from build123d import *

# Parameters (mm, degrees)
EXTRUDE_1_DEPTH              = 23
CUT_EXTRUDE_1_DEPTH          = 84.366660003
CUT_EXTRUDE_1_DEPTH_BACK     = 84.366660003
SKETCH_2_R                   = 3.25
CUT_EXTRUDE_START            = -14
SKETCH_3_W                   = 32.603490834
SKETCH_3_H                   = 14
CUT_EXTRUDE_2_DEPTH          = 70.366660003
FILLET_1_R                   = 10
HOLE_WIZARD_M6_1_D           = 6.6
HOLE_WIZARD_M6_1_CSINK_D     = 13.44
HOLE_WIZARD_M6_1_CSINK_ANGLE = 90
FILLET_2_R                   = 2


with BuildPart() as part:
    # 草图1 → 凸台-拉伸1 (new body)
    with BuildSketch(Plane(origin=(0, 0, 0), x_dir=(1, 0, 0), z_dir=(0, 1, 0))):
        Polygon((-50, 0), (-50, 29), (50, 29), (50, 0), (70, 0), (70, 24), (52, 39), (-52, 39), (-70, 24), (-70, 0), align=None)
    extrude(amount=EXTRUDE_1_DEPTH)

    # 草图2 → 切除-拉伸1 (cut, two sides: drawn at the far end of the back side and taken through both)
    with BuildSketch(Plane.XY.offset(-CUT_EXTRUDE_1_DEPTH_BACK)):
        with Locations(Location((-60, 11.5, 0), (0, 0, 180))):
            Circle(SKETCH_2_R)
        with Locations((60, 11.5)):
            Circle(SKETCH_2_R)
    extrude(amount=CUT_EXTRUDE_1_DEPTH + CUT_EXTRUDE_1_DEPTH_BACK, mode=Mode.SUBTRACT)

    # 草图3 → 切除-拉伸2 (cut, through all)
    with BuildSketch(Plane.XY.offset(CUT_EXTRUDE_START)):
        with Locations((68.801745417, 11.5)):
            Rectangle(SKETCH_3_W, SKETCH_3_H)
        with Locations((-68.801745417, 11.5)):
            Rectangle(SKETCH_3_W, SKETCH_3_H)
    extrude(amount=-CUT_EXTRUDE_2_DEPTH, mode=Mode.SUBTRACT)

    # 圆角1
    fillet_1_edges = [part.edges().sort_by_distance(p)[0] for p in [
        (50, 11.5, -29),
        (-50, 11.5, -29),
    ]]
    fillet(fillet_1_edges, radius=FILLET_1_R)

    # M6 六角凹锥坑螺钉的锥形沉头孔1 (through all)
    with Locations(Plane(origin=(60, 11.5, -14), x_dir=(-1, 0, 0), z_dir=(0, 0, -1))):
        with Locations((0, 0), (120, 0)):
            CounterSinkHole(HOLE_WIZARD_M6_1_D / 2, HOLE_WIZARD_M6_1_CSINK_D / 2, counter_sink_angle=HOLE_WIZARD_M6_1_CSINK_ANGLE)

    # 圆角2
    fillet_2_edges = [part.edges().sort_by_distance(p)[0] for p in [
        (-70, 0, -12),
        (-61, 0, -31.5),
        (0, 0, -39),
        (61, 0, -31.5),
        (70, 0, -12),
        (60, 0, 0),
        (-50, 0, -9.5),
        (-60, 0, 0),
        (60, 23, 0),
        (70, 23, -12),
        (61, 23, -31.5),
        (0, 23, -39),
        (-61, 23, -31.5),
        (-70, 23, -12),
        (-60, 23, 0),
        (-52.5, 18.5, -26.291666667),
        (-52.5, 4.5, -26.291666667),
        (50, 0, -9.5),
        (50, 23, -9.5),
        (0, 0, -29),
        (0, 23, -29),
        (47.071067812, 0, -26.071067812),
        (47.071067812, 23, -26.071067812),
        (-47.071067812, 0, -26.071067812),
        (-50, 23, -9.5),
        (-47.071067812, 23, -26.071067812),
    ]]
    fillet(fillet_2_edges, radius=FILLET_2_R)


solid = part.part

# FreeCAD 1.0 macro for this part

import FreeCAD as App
import Part
import Sketcher

V = App.Vector
Q = App.Units.Quantity


def edges_at(feature, points):
    """Names of the edges that pass closest to the given points."""
    edges = feature.Shape.Edges
    near = lambda p: min(range(len(edges)), key=lambda i: edges[i].distToShape(Part.Vertex(*p))[0])
    return sorted({f"Edge{near(p) + 1}" for p in points})


def add_polygon(sketch, points):
    """Adds a closed chain of lines whose ends are joined by coincident constraints."""
    first, n = sketch.GeometryCount, len(points)
    for a, b in zip(points, points[1:] + points[:1]):
        sketch.addGeometry(Part.LineSegment(App.Vector(*a, 0), App.Vector(*b, 0)), False)
    for i in range(n):
        sketch.addConstraint(Sketcher.Constraint("Coincident", first + i, 2, first + (i + 1) % n, 1))

doc = App.newDocument("Part")
body = doc.addObject("PartDesign::Body", "Body")

# Sketch on XZ plane
sketch1 = doc.addObject("Sketcher::SketchObject", "Sketch")
body.addObject(sketch1)
sketch1.AttachmentSupport = (doc.XZ_Plane, [""])
sketch1.MapMode = "FlatFace"
add_polygon(sketch1, [(-50, 0), (-50, -29), (50, -29), (50, 0), (70, 0), (70, -24), (52, -39), (-52, -39), (-70, -24), (-70, 0)])  # lines 0-9
sketch1.addConstraint(Sketcher.Constraint("Vertical", 0))
sketch1.addConstraint(Sketcher.Constraint("Horizontal", 1))
sketch1.addConstraint(Sketcher.Constraint("Vertical", 2))
sketch1.addConstraint(Sketcher.Constraint("Horizontal", 3))
sketch1.addConstraint(Sketcher.Constraint("Vertical", 4))
sketch1.addConstraint(Sketcher.Constraint("Horizontal", 6))
sketch1.addConstraint(Sketcher.Constraint("Vertical", 8))
sketch1.addConstraint(Sketcher.Constraint("Horizontal", 9))
sketch1.addConstraint(Sketcher.Constraint("Symmetric", 3, 2, 8, 2, -1, 1))
sketch1.addConstraint(Sketcher.Constraint("Symmetric", 2, 2, 9, 2, -2))
sketch1.addConstraint(Sketcher.Constraint("Horizontal", 4, 2, 7, 2))
sketch1.addConstraint(Sketcher.Constraint("Equal", 5, 7))
sketch1.addConstraint(Sketcher.Constraint("DistanceX", 1, 1, 1, 2, Q("100 mm")))
sketch1.addConstraint(Sketcher.Constraint("DistanceX", 3, 1, 3, 2, Q("20 mm")))
sketch1.addConstraint(Sketcher.Constraint("DistanceX", 6, 2, 6, 1, Q("104 mm")))
sketch1.addConstraint(Sketcher.Constraint("DistanceY", 0, 2, 0, 1, Q("29 mm")))
sketch1.addConstraint(Sketcher.Constraint("DistanceY", 4, 2, 4, 1, Q("24 mm")))
sketch1.addConstraint(Sketcher.Constraint("DistanceY", 5, 2, -1, 1, Q("39 mm")))
pad1 = doc.addObject("PartDesign::Pad", "Pad")
body.addObject(pad1)
pad1.Profile = sketch1
pad1.Length = 23
pad1.Reversed = True

# Sketch on XY plane
sketch2 = doc.addObject("Sketcher::SketchObject", "Sketch001")
body.addObject(sketch2)
sketch2.AttachmentSupport = (doc.XY_Plane, [""])
sketch2.MapMode = "FlatFace"
sketch2.addGeometry(Part.Circle(V(-60, 11.5, 0), V(0, 0, 1), 3.2), False)
sketch2.addGeometry(Part.Circle(V(60, 11.5, 0), V(0, 0, 1), 3.2), False)
sketch2.addConstraint(Sketcher.Constraint("Equal", 0, 1))
sketch2.addConstraint(Sketcher.Constraint("Symmetric", 0, 3, 1, 3, -2))
sketch2.addConstraint(Sketcher.Constraint("Diameter", 0, Q("6.5 mm")))
sketch2.addConstraint(Sketcher.Constraint("DistanceX", 0, 3, -1, 1, Q("60 mm")))
sketch2.addConstraint(Sketcher.Constraint("DistanceY", -1, 1, 0, 3, Q("11.5 mm")))
pocket1 = doc.addObject("PartDesign::Pocket", "Pocket")
body.addObject(pocket1)
pocket1.Profile = sketch2
pocket1.Type = "ThroughAll"
pocket1.Midplane = True

# Sketch on XY plane
sketch3 = doc.addObject("Sketcher::SketchObject", "Sketch002")
body.addObject(sketch3)
sketch3.AttachmentSupport = (doc.XY_Plane, [""])
sketch3.MapMode = "FlatFace"
sketch3.AttachmentOffset = App.Placement(V(0, 0, -14), App.Rotation())
add_polygon(sketch3, [(52, 18), (52, 4), (85, 4), (85, 18)])  # lines 0-3
add_polygon(sketch3, [(-85, 18), (-85, 4), (-52, 4), (-52, 18)])  # lines 4-7
sketch3.addConstraint(Sketcher.Constraint("Vertical", 0))
sketch3.addConstraint(Sketcher.Constraint("Horizontal", 1))
sketch3.addConstraint(Sketcher.Constraint("Vertical", 2))
sketch3.addConstraint(Sketcher.Constraint("Horizontal", 3))
sketch3.addConstraint(Sketcher.Constraint("Vertical", 4))
sketch3.addConstraint(Sketcher.Constraint("Horizontal", 5))
sketch3.addConstraint(Sketcher.Constraint("Vertical", 6))
sketch3.addConstraint(Sketcher.Constraint("Horizontal", 7))
sketch3.addConstraint(Sketcher.Constraint("Symmetric", 1, 2, 4, 2, -2))
sketch3.addConstraint(Sketcher.Constraint("Symmetric", 3, 2, 6, 2, -2))
sketch3.addConstraint(Sketcher.Constraint("DistanceY", 0, 2, 0, 1, Q("14 mm")))
sketch3.addConstraint(Sketcher.Constraint("DistanceX", 5, 2, 0, 2, Q("105 mm")))
sketch3.addConstraint(Sketcher.Constraint("DistanceY", -1, 1, 0, 2, Q("4.5 mm")))
sketch3.addConstraint(Sketcher.Constraint("DistanceX", 1, 1, 1, 2, Q("32.603491 mm")))
pocket2 = doc.addObject("PartDesign::Pocket", "Pocket001")
body.addObject(pocket2)
pocket2.Profile = sketch3
pocket2.Type = "ThroughAll"
doc.recompute()

fillet = doc.addObject("PartDesign::Fillet", "Fillet")
body.addObject(fillet)
fillet.Base = (pocket2, edges_at(pocket2, [(50, 11.5, -29), (-50, 11.5, -29)]))
fillet.Radius = 10

# Sketch on XY plane
sketch4 = doc.addObject("Sketcher::SketchObject", "Sketch003")
body.addObject(sketch4)
sketch4.AttachmentSupport = (doc.XY_Plane, [""])
sketch4.MapMode = "FlatFace"
sketch4.AttachmentOffset = App.Placement(V(0, 0, -14), App.Rotation())
sketch4.addGeometry(Part.Circle(V(60, 11.5, 0), V(0, 0, 1), 3.3), False)
sketch4.addGeometry(Part.Circle(V(-60, 11.5, 0), V(0, 0, 1), 3.3), False)
sketch4.addConstraint(Sketcher.Constraint("Equal", 0, 1))
sketch4.addConstraint(Sketcher.Constraint("Symmetric", 0, 3, 1, 3, -2))
sketch4.addConstraint(Sketcher.Constraint("Diameter", 0, Q("6.6 mm")))
sketch4.addConstraint(Sketcher.Constraint("DistanceX", -1, 1, 0, 3, Q("60 mm")))
sketch4.addConstraint(Sketcher.Constraint("DistanceY", -1, 1, 0, 3, Q("11.5 mm")))
doc.recompute()
hole = doc.addObject("PartDesign::Hole", "Hole")
body.addObject(hole)
hole.Profile = sketch4
hole.ThreadType = "None"
hole.Diameter = 6.6
hole.DepthType = "ThroughAll"
hole.HoleCutType = "Countersink"
hole.HoleCutDiameter = 13.44
hole.HoleCutCountersinkAngle = 90
hole.Reversed = True
doc.recompute()

fillet2 = doc.addObject("PartDesign::Fillet", "Fillet001")
body.addObject(fillet2)
fillet2.Base = (hole, edges_at(hole, [
    (-70, 0, -12),
    (-61, 0, -31.5),
    (0, 0, -39),
    (61, 0, -31.5),
    (70, 0, -12),
    (60, 0, 0),
    (-50, 0, -9.5),
    (-60, 0, 0),
    (60, 23, 0),
    (70, 23, -12),
    (61, 23, -31.5),
    (0, 23, -39),
    (-61, 23, -31.5),
    (-70, 23, -12),
    (-60, 23, 0),
    (-52.5, 18.5, -26.292),
    (-52.5, 4.5, -26.292),
    (50, 0, -9.5),
    (50, 23, -9.5),
    (0, 0, -29),
    (0, 23, -29),
    (47.071, 0, -26.071),
    (47.071, 23, -26.071),
    (-47.071, 0, -26.071),
    (-50, 23, -9.5),
    (-47.071, 23, -26.071),
]))
fillet2.Radius = 2

doc.recompute()
